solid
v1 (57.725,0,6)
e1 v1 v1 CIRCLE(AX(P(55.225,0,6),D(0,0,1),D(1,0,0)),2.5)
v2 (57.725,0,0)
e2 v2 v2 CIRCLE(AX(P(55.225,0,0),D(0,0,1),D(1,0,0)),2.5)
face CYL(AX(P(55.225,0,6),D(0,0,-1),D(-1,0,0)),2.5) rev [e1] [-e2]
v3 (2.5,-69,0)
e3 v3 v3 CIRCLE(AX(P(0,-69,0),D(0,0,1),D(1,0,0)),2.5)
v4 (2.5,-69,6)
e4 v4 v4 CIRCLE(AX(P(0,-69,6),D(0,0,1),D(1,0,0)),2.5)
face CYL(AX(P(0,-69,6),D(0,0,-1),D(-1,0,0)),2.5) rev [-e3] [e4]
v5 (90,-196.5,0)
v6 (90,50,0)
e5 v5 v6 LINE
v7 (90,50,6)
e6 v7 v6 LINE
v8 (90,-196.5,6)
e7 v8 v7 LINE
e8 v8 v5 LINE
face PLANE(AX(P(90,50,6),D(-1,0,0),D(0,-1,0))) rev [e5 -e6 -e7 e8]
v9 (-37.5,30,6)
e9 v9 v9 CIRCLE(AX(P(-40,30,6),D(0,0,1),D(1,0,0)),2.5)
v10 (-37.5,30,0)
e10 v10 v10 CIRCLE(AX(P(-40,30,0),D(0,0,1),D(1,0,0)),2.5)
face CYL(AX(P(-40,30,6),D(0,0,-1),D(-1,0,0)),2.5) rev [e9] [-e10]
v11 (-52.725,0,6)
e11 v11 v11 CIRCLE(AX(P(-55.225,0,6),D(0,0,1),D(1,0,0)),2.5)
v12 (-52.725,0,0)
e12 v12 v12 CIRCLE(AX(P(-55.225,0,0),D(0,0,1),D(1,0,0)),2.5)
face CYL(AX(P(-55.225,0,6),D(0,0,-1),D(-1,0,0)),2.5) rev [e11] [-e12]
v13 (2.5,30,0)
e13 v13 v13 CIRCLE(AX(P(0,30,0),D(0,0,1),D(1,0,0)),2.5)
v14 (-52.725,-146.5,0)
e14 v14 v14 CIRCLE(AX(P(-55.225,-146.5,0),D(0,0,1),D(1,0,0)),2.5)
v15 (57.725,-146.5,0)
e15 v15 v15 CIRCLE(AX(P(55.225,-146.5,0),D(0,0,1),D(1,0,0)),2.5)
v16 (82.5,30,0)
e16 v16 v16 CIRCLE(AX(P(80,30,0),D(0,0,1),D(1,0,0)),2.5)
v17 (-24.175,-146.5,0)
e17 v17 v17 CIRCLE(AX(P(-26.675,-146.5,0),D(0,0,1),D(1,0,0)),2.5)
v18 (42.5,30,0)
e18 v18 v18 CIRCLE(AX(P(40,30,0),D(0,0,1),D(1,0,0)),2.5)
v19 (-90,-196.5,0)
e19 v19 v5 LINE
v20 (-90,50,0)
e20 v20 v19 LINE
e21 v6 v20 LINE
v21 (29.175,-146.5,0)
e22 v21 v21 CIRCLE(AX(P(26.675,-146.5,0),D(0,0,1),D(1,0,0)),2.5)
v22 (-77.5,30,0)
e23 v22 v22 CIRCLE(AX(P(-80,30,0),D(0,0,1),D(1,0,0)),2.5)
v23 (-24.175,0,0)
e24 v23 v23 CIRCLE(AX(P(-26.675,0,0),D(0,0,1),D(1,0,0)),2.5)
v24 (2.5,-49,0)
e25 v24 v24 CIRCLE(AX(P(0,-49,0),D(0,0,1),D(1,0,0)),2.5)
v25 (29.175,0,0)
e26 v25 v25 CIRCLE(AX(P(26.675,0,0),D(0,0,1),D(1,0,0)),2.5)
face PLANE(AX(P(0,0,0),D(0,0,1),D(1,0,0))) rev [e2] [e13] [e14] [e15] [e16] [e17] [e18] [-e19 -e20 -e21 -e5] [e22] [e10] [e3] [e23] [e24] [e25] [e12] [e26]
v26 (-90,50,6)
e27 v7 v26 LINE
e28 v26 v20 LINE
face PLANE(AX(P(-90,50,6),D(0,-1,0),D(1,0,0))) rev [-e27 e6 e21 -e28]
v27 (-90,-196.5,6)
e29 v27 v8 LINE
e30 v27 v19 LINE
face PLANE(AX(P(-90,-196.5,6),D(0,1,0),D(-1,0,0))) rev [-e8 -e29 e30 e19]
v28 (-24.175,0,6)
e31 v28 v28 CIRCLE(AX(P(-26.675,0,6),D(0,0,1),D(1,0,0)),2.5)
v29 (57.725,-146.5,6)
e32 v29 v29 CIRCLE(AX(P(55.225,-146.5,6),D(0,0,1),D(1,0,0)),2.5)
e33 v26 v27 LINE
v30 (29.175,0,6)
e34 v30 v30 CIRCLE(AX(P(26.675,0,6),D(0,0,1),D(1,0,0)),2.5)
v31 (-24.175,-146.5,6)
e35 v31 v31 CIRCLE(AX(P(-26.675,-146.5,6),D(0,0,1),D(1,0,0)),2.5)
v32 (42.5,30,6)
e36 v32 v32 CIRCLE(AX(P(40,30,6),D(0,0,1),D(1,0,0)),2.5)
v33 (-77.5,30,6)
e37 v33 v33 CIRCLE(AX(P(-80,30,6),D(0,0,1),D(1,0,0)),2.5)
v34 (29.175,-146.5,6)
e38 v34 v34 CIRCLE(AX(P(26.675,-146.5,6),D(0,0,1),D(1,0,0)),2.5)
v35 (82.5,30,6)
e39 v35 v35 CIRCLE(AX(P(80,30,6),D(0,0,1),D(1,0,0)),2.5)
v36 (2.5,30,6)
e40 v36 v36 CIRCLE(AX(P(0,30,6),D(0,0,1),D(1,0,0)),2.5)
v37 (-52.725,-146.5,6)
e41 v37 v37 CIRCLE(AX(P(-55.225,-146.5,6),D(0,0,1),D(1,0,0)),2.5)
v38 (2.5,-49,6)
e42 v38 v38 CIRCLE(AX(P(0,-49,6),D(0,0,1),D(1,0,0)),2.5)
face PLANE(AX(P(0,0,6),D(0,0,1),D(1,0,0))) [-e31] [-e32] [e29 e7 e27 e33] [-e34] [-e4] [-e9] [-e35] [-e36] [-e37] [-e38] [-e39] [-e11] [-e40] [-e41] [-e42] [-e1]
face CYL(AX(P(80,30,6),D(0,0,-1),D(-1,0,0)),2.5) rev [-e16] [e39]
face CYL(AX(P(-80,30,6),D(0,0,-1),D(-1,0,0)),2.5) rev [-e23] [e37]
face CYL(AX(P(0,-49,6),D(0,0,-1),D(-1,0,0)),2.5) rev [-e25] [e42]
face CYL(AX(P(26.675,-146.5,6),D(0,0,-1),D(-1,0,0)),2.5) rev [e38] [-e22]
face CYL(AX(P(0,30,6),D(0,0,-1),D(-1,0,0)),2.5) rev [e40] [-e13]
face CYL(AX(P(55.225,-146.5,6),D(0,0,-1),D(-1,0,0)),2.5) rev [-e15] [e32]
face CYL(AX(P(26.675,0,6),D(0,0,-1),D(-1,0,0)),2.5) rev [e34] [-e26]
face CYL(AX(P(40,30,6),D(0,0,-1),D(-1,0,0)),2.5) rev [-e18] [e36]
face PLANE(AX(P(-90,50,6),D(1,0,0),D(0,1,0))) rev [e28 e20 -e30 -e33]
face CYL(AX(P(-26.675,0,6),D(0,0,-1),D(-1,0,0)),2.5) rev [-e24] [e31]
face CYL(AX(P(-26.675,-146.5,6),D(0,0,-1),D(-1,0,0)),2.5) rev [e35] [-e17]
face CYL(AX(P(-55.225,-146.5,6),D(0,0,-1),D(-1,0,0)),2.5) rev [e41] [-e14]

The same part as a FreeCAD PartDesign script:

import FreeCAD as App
import Part
import Sketcher
from FreeCAD import Vector


def add_polygon(sketch, points):
    """Adds a closed chain of lines whose ends are joined by coincident constraints."""
    first, n = sketch.GeometryCount, len(points)
    for a, b in zip(points, points[1:] + points[:1]):
        sketch.addGeometry(Part.LineSegment(App.Vector(*a, 0), App.Vector(*b, 0)), False)
    for i in range(n):
        sketch.addConstraint(Sketcher.Constraint("Coincident", first + i, 2, first + (i + 1) % n, 1))

doc = App.newDocument("Part")
params = doc.addObject("Spreadsheet::Sheet", "Params")
for row, (alias, value) in enumerate([
    ("sketch1_diameter", "5 mm"),
    ("sketch1_width", "180 mm"),
    ("sketch1_height", "246.5 mm"),
    ("pad1_length", "6 mm"),
], start=1):
    params.set(f"A{row}", alias)
    params.set(f"B{row}", "=" + value)
    params.setAlias(f"B{row}", alias)

body = doc.addObject("PartDesign::Body", "Body")

# Sketch on XY plane
sketch1 = body.newObject("Sketcher::SketchObject", "Sketch")
sketch1.AttachmentSupport = (doc.getObject("XY_Plane"), [""])
sketch1.MapMode = "FlatFace"
add_polygon(sketch1, [(-90, 50), (-90, -196.5), (90, -196.5), (90, 50)])  # lines 0-3
sketch1.addGeometry(Part.Circle(Vector(-55.2, -146.5, 0), Vector(0, 0, 1), 2.5), False)  # 4
sketch1.addGeometry(Part.Circle(Vector(-26.7, -146.5, 0), Vector(0, 0, 1), 2.5), False)  # 5
sketch1.addGeometry(Part.Circle(Vector(26.7, -146.5, 0), Vector(0, 0, 1), 2.5), False)  # 6
sketch1.addGeometry(Part.Circle(Vector(55.2, -146.5, 0), Vector(0, 0, 1), 2.5), False)  # 7
sketch1.addGeometry(Part.Circle(Vector(0, -69, 0), Vector(0, 0, 1), 2.5), False)  # 8
sketch1.addGeometry(Part.Circle(Vector(-55.2, 0, 0), Vector(0, 0, 1), 2.5), False)  # 9
sketch1.addGeometry(Part.Circle(Vector(-80, 30, 0), Vector(0, 0, 1), 2.5), False)  # 10
sketch1.addGeometry(Part.Circle(Vector(-26.7, 0, 0), Vector(0, 0, 1), 2.5), False)  # 11
sketch1.addGeometry(Part.Circle(Vector(-40, 30, 0), Vector(0, 0, 1), 2.5), False)  # 12
sketch1.addGeometry(Part.Circle(Vector(0, -49, 0), Vector(0, 0, 1), 2.5), False)  # 13
sketch1.addGeometry(Part.Circle(Vector(26.7, 0, 0), Vector(0, 0, 1), 2.5), False)  # 14
sketch1.addGeometry(Part.Circle(Vector(0, 30, 0), Vector(0, 0, 1), 2.5), False)  # 15
sketch1.addGeometry(Part.Circle(Vector(40, 30, 0), Vector(0, 0, 1), 2.5), False)  # 16
sketch1.addGeometry(Part.Circle(Vector(55.2, 0, 0), Vector(0, 0, 1), 2.5), False)  # 17
sketch1.addGeometry(Part.Circle(Vector(80, 30, 0), Vector(0, 0, 1), 2.5), False)  # 18
sketch1.addConstraint([
    Sketcher.Constraint("Vertical", 0),
    Sketcher.Constraint("Horizontal", 1),
    Sketcher.Constraint("Vertical", 2),
    Sketcher.Constraint("Horizontal", 3),
    Sketcher.Constraint("Equal", 4, 5),
    Sketcher.Constraint("Equal", 5, 6),
    Sketcher.Constraint("Equal", 6, 7),
    Sketcher.Constraint("Equal", 7, 8),
    Sketcher.Constraint("Equal", 8, 9),
    Sketcher.Constraint("Equal", 9, 10),
    Sketcher.Constraint("Equal", 10, 11),
    Sketcher.Constraint("Equal", 11, 12),
    Sketcher.Constraint("Equal", 12, 13),
    Sketcher.Constraint("Equal", 13, 14),
    Sketcher.Constraint("Equal", 14, 15),
    Sketcher.Constraint("Equal", 15, 16),
    Sketcher.Constraint("Equal", 16, 17),
    Sketcher.Constraint("Equal", 17, 18),
    Sketcher.Constraint("Symmetric", 11, 3, 14, 3, -1, 1),
    Sketcher.Constraint("Symmetric", 9, 3, 17, 3, -1, 1),
    Sketcher.Constraint("Symmetric", 5, 3, 6, 3, -2),
    Sketcher.Constraint("Symmetric", 4, 3, 7, 3, -2),
    Sketcher.Constraint("Symmetric", 12, 3, 16, 3, -2),
    Sketcher.Constraint("Symmetric", 10, 3, 18, 3, -2),
    Sketcher.Constraint("PointOnObject", 8, 3, -2),
    Sketcher.Constraint("PointOnObject", 9, 3, -1),
    Sketcher.Constraint("PointOnObject", 11, 3, -1),
    Sketcher.Constraint("PointOnObject", 13, 3, -2),
    Sketcher.Constraint("PointOnObject", 15, 3, -2),
    Sketcher.Constraint("Horizontal", 4, 3, 5, 3),
    Sketcher.Constraint("Horizontal", 10, 3, 12, 3),
    Sketcher.Constraint("Horizontal", 12, 3, 15, 3),
    Sketcher.Constraint("Vertical", 4, 3, 9, 3),
    Sketcher.Constraint("Vertical", 5, 3, 11, 3),
    Sketcher.Constraint("Diameter", 4, 5.0),
    Sketcher.Constraint("DistanceX", 1, 1, 1, 2, 180.0),
    Sketcher.Constraint("DistanceY", 0, 2, 0, 1, 246.5),
    Sketcher.Constraint("DistanceY", 8, 3, -1, 1, 69.0),
    Sketcher.Constraint("DistanceX", 10, 3, -1, 1, 80.0),
    Sketcher.Constraint("DistanceY", -1, 1, 10, 3, 30.0),
    Sketcher.Constraint("DistanceX", 12, 3, -1, 1, 40.0),
    Sketcher.Constraint("DistanceY", 13, 3, -1, 1, 49.0),
    Sketcher.Constraint("DistanceX", 0, 2, -1, 1, 90.0),
    Sketcher.Constraint("DistanceY", -1, 1, 2, 2, 50.0),
    Sketcher.Constraint("DistanceY", 0, 2, 4, 3, 50.0),
    Sketcher.Constraint("DistanceX", 4, 3, 6, 3, 81.9),
    Sketcher.Constraint("DistanceX", 4, 3, 5, 3, 28.55),
])
sketch1.setExpression("Constraints[38]", "Params.sketch1_diameter")
sketch1.setExpression("Constraints[39]", "Params.sketch1_width")
sketch1.setExpression("Constraints[40]", "Params.sketch1_height")
pad1 = body.newObject("PartDesign::Pad", "Pad")
pad1.Profile = sketch1
pad1.setExpression("Length", "Params.pad1_length")

doc.recompute()
